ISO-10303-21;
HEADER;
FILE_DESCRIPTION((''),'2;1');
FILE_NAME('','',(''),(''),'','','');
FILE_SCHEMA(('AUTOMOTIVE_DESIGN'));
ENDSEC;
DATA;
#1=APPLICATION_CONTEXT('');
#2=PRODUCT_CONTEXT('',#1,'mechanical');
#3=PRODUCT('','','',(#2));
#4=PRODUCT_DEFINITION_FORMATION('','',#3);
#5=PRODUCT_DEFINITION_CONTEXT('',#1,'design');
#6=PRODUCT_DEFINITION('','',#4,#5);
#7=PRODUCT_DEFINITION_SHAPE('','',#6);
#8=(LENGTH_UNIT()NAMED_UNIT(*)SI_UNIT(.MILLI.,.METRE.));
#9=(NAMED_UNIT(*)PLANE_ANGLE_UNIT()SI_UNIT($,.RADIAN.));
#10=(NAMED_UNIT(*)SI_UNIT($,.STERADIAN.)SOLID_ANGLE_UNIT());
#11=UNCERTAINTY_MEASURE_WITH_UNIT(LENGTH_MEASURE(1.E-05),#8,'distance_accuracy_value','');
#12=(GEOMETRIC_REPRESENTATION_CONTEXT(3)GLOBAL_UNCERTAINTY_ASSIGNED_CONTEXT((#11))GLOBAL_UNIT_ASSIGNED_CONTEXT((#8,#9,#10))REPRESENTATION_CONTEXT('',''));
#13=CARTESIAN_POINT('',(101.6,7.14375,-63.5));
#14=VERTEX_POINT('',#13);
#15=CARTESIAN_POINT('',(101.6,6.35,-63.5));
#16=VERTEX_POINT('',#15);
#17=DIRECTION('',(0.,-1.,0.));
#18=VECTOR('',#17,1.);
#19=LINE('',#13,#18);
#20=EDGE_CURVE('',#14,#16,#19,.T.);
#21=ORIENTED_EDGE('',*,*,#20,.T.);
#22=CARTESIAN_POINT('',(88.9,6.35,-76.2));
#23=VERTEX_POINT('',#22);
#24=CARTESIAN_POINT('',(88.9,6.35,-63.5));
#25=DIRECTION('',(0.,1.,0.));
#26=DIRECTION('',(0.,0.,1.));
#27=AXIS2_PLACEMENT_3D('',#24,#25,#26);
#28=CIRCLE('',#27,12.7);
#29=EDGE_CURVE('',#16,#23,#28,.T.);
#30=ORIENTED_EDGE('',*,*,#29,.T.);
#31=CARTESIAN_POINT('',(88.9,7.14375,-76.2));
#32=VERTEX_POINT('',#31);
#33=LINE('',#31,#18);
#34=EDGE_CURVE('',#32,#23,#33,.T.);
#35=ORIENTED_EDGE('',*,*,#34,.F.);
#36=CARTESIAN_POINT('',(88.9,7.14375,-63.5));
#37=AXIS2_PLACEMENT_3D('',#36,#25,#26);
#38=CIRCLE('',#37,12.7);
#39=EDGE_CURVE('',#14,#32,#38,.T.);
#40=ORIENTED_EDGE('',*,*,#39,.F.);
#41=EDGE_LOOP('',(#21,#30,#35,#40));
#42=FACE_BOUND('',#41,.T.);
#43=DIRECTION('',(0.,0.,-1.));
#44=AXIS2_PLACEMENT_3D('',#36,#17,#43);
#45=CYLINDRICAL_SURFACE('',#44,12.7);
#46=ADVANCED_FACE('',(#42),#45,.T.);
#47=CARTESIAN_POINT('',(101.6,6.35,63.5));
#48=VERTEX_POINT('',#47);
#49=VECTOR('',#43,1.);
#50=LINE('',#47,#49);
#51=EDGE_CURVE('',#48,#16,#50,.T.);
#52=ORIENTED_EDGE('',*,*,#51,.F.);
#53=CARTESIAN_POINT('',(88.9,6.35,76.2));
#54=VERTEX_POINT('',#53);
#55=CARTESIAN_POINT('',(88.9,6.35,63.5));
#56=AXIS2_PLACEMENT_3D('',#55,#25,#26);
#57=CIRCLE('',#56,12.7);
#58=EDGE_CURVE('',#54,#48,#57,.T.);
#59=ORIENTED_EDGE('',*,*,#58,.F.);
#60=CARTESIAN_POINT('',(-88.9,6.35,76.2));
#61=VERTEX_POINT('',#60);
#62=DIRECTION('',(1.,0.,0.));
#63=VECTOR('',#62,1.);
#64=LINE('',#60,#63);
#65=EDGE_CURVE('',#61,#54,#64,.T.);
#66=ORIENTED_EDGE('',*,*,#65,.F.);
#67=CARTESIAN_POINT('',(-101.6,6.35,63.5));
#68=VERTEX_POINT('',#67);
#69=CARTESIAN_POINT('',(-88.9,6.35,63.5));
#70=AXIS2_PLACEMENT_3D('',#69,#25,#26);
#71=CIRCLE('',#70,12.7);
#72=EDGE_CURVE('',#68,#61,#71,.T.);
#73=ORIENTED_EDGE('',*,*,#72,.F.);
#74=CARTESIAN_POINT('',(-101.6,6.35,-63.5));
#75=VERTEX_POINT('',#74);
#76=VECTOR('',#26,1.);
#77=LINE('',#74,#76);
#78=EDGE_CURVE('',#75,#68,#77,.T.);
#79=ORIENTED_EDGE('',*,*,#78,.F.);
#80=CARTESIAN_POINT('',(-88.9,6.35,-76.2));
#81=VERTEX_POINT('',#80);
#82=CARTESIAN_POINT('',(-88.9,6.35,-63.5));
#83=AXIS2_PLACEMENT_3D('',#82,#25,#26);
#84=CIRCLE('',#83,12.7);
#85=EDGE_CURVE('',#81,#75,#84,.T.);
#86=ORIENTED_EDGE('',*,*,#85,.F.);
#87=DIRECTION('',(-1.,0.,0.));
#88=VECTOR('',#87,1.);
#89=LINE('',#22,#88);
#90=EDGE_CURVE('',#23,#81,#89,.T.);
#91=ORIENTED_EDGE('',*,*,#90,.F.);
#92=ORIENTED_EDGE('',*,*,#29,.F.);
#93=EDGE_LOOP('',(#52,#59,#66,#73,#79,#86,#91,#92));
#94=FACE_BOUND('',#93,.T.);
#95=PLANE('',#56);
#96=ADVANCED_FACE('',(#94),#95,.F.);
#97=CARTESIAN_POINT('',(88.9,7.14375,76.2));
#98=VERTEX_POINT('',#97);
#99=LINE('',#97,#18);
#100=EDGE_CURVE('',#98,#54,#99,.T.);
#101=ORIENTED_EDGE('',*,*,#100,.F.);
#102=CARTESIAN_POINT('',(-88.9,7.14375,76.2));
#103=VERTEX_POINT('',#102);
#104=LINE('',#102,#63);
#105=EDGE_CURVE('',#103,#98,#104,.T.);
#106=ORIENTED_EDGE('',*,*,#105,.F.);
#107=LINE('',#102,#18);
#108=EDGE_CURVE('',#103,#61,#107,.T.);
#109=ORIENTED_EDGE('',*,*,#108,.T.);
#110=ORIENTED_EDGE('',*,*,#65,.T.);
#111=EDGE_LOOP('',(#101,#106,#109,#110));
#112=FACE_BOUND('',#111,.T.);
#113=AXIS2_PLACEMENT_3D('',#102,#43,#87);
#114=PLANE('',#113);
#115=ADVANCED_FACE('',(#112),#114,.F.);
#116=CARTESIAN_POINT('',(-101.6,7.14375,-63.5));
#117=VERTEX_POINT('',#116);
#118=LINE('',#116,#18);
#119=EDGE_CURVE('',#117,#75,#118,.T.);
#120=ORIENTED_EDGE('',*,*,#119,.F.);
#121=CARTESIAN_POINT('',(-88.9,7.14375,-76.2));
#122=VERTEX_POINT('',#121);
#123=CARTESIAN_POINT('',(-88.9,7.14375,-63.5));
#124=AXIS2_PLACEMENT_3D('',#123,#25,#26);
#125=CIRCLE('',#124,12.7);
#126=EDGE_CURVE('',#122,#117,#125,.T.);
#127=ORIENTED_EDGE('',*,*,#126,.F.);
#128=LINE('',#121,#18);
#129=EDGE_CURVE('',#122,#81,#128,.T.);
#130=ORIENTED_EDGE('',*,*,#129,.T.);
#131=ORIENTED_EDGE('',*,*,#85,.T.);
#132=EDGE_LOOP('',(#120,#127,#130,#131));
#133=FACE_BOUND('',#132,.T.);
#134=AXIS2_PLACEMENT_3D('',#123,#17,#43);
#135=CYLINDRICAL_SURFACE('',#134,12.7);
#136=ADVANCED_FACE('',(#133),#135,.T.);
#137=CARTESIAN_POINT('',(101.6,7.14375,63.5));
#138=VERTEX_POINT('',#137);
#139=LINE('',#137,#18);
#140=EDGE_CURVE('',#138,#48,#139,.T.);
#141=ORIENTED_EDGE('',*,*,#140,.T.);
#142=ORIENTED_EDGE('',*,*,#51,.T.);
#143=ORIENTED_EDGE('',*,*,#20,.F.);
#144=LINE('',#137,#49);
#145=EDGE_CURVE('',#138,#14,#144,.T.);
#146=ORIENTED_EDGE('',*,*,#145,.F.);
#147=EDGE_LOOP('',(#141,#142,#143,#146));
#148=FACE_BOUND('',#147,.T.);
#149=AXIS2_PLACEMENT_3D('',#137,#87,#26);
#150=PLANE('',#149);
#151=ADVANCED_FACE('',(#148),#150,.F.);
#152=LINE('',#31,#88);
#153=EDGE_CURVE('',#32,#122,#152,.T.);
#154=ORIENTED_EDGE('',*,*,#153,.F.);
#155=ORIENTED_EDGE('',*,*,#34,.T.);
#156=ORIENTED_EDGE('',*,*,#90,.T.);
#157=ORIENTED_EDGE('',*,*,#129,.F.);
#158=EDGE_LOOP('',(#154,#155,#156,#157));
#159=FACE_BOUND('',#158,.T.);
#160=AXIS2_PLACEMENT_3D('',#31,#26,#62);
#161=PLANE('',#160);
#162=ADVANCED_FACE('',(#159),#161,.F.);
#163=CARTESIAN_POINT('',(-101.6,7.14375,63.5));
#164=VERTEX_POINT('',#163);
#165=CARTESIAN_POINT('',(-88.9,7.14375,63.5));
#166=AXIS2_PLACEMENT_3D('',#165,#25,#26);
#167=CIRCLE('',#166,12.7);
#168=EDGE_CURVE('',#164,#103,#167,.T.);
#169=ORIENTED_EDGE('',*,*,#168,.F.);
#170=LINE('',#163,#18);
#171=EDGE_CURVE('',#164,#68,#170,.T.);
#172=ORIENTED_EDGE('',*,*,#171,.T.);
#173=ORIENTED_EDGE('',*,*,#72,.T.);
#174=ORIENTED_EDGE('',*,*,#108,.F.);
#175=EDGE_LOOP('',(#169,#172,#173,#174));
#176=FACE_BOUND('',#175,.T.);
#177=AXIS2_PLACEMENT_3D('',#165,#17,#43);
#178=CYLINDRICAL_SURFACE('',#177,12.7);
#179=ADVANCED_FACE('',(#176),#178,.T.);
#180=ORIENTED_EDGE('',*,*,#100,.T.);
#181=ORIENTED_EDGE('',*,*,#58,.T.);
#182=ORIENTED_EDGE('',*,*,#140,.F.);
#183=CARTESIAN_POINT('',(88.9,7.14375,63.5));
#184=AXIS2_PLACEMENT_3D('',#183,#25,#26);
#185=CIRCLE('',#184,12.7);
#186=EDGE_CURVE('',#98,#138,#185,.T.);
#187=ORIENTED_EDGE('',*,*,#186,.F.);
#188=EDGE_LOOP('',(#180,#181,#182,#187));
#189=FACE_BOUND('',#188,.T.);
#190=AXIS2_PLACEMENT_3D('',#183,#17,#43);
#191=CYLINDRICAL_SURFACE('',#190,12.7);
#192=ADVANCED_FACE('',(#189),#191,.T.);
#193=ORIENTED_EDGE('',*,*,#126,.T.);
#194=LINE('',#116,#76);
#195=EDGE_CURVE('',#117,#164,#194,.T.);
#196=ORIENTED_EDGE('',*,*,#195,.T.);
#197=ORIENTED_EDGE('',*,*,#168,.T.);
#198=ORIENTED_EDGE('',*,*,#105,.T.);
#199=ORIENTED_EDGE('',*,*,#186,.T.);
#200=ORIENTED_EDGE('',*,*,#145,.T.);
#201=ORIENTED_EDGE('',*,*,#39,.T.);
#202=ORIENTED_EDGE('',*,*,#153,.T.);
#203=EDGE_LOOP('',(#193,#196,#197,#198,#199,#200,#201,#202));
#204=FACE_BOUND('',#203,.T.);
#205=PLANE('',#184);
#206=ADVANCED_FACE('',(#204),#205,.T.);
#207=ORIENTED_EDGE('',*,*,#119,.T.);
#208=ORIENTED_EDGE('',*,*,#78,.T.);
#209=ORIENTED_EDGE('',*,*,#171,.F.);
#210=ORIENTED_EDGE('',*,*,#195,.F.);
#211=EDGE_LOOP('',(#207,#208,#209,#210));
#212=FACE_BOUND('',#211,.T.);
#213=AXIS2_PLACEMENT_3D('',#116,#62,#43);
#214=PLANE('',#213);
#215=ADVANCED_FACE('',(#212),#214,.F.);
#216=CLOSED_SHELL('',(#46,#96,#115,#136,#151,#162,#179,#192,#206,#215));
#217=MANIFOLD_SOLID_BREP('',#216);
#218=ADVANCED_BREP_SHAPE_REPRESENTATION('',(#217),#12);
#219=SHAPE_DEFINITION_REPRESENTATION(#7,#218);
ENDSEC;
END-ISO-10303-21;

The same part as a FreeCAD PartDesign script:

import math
import FreeCAD as App
import Part
import Sketcher

V = App.Vector
Q = App.Units.Quantity

doc = App.newDocument("Part")
body = doc.addObject("PartDesign::Body", "Body")

# Sketch on XZ plane
sketch1 = body.newObject("Sketcher::SketchObject", "Sketch")
sketch1.AttachmentSupport = (doc.getObject("XZ_Plane"), [""])
sketch1.MapMode = "FlatFace"
sketch1.AttachmentOffset = App.Placement(V(0, 0, -0.25 * 25.4), App.Rotation())
sketch1.addGeometry([
    Part.LineSegment(V(102, 64, 0), V(102, -64, 0)),  # 0
    Part.ArcOfCircle(Part.Circle(V(89, -64, 0), V(0, 0, 1), 13), math.radians(-90), math.radians(0)),  # 1
    Part.LineSegment(V(89, -76, 0), V(-89, -76, 0)),  # 2
    Part.ArcOfCircle(Part.Circle(V(-89, -64, 0), V(0, 0, 1), 13), math.radians(180), math.radians(270)),  # 3
    Part.LineSegment(V(-102, -64, 0), V(-102, 64, 0)),  # 4
    Part.ArcOfCircle(Part.Circle(V(-89, 64, 0), V(0, 0, 1), 13), math.radians(90), math.radians(180)),  # 5
    Part.LineSegment(V(-89, 76, 0), V(89, 76, 0)),  # 6
    Part.ArcOfCircle(Part.Circle(V(89, 64, 0), V(0, 0, 1), 13), math.radians(0), math.radians(90)),  # 7
], False)
sketch1.addConstraint([
    Sketcher.Constraint("Tangent", 0, 2, 1, 2),
    Sketcher.Constraint("Tangent", 1, 1, 2, 1),
    Sketcher.Constraint("Tangent", 2, 2, 3, 2),
    Sketcher.Constraint("Tangent", 3, 1, 4, 1),
    Sketcher.Constraint("Tangent", 4, 2, 5, 2),
    Sketcher.Constraint("Tangent", 5, 1, 6, 1),
    Sketcher.Constraint("Tangent", 6, 2, 7, 2),
    Sketcher.Constraint("Tangent", 7, 1, 0, 1),
    Sketcher.Constraint("Vertical", 0),
    Sketcher.Constraint("Horizontal", 2),
    Sketcher.Constraint("Vertical", 4),
    Sketcher.Constraint("Horizontal", 6),
    Sketcher.Constraint("Equal", 1, 3),
    Sketcher.Constraint("Equal", 3, 5),
    Sketcher.Constraint("Equal", 5, 7),
    Sketcher.Constraint("Symmetric", 1, 3, 5, 3, -1, 1),
    Sketcher.Constraint("Radius", 1, Q("0.5 in")),
    Sketcher.Constraint("DistanceX", 2, 2, 2, 1, Q("7 in")),
    Sketcher.Constraint("DistanceY", 0, 2, 0, 1, Q("5 in")),
])
pad1 = body.newObject("PartDesign::Pad", "Pad")
pad1.Profile = sketch1
pad1.Length = Q("0.03125 in")
pad1.Reversed = True

doc.recompute()
